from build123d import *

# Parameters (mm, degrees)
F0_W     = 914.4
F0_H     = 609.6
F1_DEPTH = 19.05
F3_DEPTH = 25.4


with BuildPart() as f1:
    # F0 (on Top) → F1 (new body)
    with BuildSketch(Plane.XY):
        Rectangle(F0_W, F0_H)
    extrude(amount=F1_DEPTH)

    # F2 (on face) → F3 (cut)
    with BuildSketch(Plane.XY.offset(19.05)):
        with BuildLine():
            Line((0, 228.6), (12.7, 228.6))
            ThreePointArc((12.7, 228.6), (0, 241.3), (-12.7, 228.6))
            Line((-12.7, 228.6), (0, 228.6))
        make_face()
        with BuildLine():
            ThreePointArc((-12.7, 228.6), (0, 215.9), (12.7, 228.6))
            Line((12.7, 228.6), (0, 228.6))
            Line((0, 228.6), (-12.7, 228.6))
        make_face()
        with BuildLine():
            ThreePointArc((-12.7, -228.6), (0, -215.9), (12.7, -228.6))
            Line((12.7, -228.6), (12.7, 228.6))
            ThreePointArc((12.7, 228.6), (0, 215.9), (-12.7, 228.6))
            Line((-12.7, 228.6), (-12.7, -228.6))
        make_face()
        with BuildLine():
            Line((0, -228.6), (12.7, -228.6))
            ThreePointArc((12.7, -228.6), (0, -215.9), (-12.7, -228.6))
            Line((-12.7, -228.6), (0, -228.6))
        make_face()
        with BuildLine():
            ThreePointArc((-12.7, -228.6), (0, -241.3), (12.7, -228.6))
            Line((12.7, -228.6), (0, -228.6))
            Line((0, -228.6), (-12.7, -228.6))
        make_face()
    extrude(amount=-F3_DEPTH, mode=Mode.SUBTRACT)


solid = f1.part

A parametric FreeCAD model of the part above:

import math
import FreeCAD as App
import Part
import Sketcher
Q = App.Units.Quantity

doc = App.newDocument("Part")
params = doc.addObject("Spreadsheet::Sheet", "Params")
for row, (alias, value) in enumerate([
    ("sketch1_width", "36 in"),
    ("sketch1_height", "24 in"),
    ("pad1_length", "0.75 in"),
    ("sketch2_radius", "0.5 in"),
    ("sketch2_height", "18 in"),
    ("pocket1_length", "1 in"),
], start=1):
    params.set(f"A{row}", alias)
    params.set(f"B{row}", "=" + value)
    params.setAlias(f"B{row}", alias)

body = doc.addObject("PartDesign::Body", "Body")

# Sketch on XY plane
sketch1 = doc.addObject("Sketcher::SketchObject", "Sketch")
body.addObject(sketch1)
sketch1.AttachmentSupport = (doc.XY_Plane, [""])
sketch1.MapMode = "FlatFace"
sketch1.addGeometry(Part.LineSegment(App.Vector(-457, 305, 0), App.Vector(-457, -305, 0)), False)
sketch1.addGeometry(Part.LineSegment(App.Vector(-457, -305, 0), App.Vector(457, -305, 0)), False)
sketch1.addGeometry(Part.LineSegment(App.Vector(457, -305, 0), App.Vector(457, 305, 0)), False)
sketch1.addGeometry(Part.LineSegment(App.Vector(457, 305, 0), App.Vector(-457, 305, 0)), False)
sketch1.addConstraint(Sketcher.Constraint("Coincident", 0, 2, 1, 1))
sketch1.addConstraint(Sketcher.Constraint("Coincident", 1, 2, 2, 1))
sketch1.addConstraint(Sketcher.Constraint("Coincident", 2, 2, 3, 1))
sketch1.addConstraint(Sketcher.Constraint("Coincident", 3, 2, 0, 1))
sketch1.addConstraint(Sketcher.Constraint("Vertical", 0))
sketch1.addConstraint(Sketcher.Constraint("Horizontal", 1))
sketch1.addConstraint(Sketcher.Constraint("Vertical", 2))
sketch1.addConstraint(Sketcher.Constraint("Horizontal", 3))
sketch1.addConstraint(Sketcher.Constraint("Symmetric", 0, 2, 2, 2, -1, 1))
sketch1.addConstraint(Sketcher.Constraint("DistanceX", 1, 1, 1, 2, Q("36 in")))
sketch1.addConstraint(Sketcher.Constraint("DistanceY", 0, 2, 0, 1, Q("24 in")))
sketch1.setExpression("Constraints[9]", "Params.sketch1_width")
sketch1.setExpression("Constraints[10]", "Params.sketch1_height")
pad1 = doc.addObject("PartDesign::Pad", "Pad")
body.addObject(pad1)
pad1.Profile = sketch1
pad1.setExpression("Length", "Params.pad1_length")

# Sketch on XY plane
sketch2 = doc.addObject("Sketcher::SketchObject", "Sketch001")
body.addObject(sketch2)
sketch2.AttachmentSupport = (doc.XY_Plane, [""])
sketch2.MapMode = "FlatFace"
sketch2.AttachmentOffset = App.Placement(App.Vector(0, 0, 0.75 * 25.4), App.Rotation())
sketch2.addGeometry(Part.ArcOfCircle(Part.Circle(App.Vector(0, 229, 0), App.Vector(0, 0, 1), 13), math.radians(0), math.radians(180)), False)
sketch2.addGeometry(Part.LineSegment(App.Vector(-13, 229, 0), App.Vector(-13, -229, 0)), False)
sketch2.addGeometry(Part.ArcOfCircle(Part.Circle(App.Vector(0, -229, 0), App.Vector(0, 0, 1), 13), math.radians(180), math.radians(360)), False)
sketch2.addGeometry(Part.LineSegment(App.Vector(13, -229, 0), App.Vector(13, 229, 0)), False)
sketch2.addConstraint(Sketcher.Constraint("Tangent", 0, 2, 1, 1))
sketch2.addConstraint(Sketcher.Constraint("Tangent", 1, 2, 2, 1))
sketch2.addConstraint(Sketcher.Constraint("Tangent", 2, 2, 3, 1))
sketch2.addConstraint(Sketcher.Constraint("Tangent", 3, 2, 0, 1))
sketch2.addConstraint(Sketcher.Constraint("Vertical", 1))
sketch2.addConstraint(Sketcher.Constraint("Vertical", 3))
sketch2.addConstraint(Sketcher.Constraint("Symmetric", 0, 3, 2, 3, -1, 1))
sketch2.addConstraint(Sketcher.Constraint("Radius", 0, Q("0.5 in")))
sketch2.addConstraint(Sketcher.Constraint("DistanceY", 1, 2, 1, 1, Q("18 in")))
sketch2.setExpression("Constraints[7]", "Params.sketch2_radius")
sketch2.setExpression("Constraints[8]", "Params.sketch2_height")
pocket1 = doc.addObject("PartDesign::Pocket", "Pocket")
body.addObject(pocket1)
pocket1.Profile = sketch2
pocket1.setExpression("Length", "Params.pocket1_length")

doc.recompute()
